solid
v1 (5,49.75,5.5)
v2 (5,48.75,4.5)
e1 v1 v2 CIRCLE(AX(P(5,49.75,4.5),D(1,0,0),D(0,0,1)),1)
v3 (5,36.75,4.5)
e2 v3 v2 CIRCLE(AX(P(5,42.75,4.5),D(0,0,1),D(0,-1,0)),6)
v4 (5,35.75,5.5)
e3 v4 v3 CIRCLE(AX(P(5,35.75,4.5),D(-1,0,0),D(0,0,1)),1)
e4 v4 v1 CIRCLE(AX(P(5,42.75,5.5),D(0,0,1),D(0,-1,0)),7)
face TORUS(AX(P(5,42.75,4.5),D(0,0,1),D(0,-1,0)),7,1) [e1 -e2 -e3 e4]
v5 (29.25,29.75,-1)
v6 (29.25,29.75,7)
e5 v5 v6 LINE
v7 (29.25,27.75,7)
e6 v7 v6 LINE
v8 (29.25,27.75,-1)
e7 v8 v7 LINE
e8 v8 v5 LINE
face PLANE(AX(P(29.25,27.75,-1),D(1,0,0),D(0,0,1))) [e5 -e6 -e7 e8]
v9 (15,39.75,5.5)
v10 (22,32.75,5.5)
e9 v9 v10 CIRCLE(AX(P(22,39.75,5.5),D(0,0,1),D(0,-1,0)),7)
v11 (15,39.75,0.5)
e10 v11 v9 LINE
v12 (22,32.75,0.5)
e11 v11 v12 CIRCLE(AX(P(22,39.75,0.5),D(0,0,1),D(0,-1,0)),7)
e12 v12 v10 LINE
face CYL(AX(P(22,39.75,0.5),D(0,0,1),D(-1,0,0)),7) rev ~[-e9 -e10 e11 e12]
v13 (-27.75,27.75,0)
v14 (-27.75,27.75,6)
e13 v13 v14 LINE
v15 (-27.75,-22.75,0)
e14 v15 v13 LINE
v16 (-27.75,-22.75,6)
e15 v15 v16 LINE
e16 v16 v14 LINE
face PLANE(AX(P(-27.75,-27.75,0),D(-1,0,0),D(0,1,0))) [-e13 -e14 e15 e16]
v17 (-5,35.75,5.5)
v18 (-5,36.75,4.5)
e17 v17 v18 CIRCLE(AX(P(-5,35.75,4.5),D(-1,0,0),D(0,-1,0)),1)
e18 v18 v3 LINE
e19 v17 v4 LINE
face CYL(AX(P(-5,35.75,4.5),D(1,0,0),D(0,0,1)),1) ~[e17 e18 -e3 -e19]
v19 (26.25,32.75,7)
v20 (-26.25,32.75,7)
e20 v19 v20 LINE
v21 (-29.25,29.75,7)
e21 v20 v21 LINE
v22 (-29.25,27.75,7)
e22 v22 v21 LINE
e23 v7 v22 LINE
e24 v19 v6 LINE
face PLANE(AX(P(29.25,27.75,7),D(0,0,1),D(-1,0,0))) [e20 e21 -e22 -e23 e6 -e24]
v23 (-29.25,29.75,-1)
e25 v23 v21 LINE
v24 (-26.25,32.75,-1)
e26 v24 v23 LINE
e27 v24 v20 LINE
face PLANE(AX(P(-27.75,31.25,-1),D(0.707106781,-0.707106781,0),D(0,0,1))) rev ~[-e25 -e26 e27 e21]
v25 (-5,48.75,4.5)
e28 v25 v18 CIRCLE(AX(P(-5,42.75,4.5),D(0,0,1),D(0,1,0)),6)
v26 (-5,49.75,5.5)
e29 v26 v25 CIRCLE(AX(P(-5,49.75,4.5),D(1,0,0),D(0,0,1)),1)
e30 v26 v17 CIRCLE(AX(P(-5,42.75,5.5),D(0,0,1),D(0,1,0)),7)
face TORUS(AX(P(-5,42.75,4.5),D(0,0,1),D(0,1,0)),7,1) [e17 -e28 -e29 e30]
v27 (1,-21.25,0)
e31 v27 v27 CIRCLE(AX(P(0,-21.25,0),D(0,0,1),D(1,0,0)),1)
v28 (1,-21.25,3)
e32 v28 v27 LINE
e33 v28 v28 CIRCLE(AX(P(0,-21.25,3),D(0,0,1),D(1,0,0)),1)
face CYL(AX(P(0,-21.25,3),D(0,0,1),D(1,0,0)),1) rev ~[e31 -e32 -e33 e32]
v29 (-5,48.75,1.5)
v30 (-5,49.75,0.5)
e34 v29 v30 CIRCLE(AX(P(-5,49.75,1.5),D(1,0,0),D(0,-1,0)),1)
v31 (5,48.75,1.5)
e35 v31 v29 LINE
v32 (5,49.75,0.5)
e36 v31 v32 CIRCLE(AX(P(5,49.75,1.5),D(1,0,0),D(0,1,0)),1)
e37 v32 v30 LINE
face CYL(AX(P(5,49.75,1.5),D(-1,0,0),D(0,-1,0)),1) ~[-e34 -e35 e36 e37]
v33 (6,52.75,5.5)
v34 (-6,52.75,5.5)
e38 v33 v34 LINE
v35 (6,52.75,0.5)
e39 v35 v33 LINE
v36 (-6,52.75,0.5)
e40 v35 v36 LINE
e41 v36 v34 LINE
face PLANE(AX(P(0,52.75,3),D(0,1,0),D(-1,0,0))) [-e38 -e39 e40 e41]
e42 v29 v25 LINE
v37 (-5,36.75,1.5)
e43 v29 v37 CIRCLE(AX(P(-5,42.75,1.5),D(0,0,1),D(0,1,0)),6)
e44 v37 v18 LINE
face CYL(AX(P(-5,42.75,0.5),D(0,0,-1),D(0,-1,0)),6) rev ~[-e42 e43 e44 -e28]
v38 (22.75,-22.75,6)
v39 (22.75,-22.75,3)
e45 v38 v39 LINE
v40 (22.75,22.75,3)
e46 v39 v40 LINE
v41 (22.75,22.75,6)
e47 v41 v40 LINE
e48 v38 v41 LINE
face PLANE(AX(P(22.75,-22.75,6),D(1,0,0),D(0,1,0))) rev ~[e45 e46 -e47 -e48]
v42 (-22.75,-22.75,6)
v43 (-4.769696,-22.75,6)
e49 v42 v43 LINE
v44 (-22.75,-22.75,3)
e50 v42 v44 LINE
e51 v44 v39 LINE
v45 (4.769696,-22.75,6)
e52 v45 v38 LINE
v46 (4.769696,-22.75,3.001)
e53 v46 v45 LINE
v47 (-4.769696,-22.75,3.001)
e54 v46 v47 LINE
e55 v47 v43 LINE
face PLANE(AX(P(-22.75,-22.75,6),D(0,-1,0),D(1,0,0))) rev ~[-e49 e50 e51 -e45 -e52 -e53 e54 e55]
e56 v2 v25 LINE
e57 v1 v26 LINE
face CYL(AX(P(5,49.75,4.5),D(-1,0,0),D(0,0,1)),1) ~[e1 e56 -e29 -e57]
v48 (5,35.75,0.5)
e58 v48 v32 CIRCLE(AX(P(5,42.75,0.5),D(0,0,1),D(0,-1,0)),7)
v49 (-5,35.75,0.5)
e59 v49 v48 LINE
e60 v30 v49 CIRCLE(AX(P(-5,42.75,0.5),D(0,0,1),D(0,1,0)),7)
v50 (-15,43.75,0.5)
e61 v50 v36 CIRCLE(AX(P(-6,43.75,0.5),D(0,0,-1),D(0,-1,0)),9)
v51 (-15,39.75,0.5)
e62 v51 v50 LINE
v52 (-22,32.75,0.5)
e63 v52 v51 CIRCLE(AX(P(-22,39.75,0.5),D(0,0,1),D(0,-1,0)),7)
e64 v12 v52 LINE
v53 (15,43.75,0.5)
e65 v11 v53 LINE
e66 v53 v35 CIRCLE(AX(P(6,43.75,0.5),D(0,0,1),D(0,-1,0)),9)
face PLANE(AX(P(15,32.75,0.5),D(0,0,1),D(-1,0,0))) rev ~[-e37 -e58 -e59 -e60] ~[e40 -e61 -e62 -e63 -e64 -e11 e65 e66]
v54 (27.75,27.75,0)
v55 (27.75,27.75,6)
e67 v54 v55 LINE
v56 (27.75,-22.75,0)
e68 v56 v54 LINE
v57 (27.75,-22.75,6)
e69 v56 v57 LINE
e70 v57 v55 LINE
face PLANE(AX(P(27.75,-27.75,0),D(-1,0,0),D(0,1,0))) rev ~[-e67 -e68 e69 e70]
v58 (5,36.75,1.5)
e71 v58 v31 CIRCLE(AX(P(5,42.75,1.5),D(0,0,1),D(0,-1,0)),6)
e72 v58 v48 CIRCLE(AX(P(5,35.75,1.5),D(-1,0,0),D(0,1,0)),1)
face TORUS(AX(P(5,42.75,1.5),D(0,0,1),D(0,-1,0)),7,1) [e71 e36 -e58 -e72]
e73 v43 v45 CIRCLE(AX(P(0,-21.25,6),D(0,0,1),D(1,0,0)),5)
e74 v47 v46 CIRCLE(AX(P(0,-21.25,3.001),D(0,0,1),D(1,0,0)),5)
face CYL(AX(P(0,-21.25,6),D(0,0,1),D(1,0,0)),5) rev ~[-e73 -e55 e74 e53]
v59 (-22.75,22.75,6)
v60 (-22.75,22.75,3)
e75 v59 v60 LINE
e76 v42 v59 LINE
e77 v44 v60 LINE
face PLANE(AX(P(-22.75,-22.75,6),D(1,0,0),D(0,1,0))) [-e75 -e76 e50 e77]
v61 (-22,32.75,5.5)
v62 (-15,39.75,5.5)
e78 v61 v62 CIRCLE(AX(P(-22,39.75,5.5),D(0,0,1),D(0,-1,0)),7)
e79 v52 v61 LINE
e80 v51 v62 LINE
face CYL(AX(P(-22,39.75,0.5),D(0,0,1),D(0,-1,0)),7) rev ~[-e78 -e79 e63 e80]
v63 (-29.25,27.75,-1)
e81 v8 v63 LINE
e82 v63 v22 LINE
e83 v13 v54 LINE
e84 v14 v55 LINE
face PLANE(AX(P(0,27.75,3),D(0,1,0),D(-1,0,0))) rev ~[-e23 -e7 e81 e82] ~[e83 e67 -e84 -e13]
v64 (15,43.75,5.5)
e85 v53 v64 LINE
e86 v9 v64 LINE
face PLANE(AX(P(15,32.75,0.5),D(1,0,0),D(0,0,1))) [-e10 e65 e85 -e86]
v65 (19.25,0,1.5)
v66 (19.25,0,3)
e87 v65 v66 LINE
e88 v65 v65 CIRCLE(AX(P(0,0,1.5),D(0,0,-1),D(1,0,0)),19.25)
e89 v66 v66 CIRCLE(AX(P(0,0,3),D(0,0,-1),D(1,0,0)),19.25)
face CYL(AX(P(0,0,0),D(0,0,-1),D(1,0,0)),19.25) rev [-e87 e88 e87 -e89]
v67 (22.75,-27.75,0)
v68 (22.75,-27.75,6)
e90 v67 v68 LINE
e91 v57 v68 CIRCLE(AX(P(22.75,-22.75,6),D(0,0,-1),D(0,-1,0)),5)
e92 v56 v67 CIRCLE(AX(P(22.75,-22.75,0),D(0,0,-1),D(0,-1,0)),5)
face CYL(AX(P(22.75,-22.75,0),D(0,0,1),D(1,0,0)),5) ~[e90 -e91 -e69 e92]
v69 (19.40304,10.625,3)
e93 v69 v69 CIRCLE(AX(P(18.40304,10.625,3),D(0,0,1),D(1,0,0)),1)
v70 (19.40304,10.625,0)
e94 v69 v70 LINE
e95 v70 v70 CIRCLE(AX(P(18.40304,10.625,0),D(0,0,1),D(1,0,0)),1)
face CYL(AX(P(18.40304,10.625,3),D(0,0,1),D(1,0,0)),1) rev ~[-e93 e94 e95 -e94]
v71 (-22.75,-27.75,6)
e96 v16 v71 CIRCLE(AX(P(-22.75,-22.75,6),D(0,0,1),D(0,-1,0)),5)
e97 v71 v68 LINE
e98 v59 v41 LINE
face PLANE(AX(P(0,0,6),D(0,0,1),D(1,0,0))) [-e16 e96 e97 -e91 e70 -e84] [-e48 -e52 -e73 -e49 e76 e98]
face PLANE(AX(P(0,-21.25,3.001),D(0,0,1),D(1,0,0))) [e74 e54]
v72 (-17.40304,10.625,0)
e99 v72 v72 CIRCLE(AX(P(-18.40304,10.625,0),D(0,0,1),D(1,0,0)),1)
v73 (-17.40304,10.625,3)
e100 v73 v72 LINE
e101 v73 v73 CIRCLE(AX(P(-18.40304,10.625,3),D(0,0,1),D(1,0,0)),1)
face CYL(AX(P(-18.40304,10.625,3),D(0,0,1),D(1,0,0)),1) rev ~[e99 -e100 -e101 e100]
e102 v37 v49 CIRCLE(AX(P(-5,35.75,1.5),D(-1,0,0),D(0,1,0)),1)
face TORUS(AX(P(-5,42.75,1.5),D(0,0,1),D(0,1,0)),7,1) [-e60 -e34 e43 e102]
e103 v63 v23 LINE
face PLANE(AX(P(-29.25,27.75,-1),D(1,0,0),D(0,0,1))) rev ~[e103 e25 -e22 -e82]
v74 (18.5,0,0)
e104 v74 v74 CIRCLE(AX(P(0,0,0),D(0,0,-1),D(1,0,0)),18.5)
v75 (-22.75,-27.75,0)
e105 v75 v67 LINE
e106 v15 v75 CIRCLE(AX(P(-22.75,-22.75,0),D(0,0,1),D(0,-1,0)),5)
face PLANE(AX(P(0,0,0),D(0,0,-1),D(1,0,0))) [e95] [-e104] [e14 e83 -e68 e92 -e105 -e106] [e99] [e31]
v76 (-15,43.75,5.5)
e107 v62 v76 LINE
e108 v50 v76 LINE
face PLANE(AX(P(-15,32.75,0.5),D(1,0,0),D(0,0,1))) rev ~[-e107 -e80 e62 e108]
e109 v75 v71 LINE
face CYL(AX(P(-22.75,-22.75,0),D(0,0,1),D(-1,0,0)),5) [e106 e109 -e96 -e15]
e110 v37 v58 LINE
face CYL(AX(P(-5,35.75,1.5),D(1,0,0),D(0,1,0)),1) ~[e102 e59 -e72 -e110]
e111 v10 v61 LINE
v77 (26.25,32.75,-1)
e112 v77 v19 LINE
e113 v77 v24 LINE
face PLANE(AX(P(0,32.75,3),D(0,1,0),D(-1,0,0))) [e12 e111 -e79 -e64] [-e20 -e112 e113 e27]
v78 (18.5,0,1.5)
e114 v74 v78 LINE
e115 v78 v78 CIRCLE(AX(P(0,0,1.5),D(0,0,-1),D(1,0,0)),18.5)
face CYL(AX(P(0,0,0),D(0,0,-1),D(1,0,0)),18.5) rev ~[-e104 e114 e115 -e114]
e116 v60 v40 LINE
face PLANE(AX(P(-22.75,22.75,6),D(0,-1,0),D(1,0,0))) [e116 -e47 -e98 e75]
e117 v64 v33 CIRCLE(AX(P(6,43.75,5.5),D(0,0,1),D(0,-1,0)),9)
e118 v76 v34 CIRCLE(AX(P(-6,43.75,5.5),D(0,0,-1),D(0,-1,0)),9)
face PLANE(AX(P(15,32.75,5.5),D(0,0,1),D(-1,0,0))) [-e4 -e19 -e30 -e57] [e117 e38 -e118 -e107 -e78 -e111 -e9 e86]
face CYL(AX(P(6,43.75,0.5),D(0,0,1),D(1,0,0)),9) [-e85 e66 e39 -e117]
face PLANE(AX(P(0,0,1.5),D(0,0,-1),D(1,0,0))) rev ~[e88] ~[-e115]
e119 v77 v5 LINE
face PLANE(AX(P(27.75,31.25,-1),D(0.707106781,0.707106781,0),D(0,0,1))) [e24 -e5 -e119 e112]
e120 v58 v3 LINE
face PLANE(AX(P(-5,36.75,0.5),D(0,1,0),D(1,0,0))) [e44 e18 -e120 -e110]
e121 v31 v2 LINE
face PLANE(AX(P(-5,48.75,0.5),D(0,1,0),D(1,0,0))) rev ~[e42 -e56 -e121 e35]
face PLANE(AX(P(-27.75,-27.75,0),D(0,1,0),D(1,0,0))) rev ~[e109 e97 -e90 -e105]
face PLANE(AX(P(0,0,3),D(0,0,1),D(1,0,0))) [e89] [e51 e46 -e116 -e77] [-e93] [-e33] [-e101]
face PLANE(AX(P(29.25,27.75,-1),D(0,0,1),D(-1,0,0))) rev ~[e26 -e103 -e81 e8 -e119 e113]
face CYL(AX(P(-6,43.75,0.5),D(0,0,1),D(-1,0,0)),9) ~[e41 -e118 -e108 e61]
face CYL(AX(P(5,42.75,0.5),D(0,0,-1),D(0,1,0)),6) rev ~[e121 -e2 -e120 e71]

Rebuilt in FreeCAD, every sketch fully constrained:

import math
import FreeCAD as App
import Part
import Sketcher
from FreeCAD import Vector
Q = App.Units.Quantity


def edges_at(feature, points):
    """Names of the edges that pass closest to the given points."""
    edges = feature.Shape.Edges
    near = lambda p: min(range(len(edges)), key=lambda i: edges[i].distToShape(Part.Vertex(*p))[0])
    return sorted({f"Edge{near(p) + 1}" for p in points})

doc = App.newDocument("Part")
body = doc.addObject("PartDesign::Body", "Body")

# Sketch on XY plane
sketch1 = body.newObject("Sketcher::SketchObject", "Sketch")
sketch1.AttachmentSupport = (doc.getObject("XY_Plane"), [""])
sketch1.MapMode = "FlatFace"
sketch1.addGeometry([
    Part.LineSegment(Vector(-28, 28, 0), Vector(-28, -28, 0)),  # 0
    Part.LineSegment(Vector(-28, -28, 0), Vector(28, -28, 0)),  # 1
    Part.LineSegment(Vector(28, -28, 0), Vector(28, 28, 0)),  # 2
    Part.LineSegment(Vector(28, 28, 0), Vector(-28, 28, 0)),  # 3
    Part.Circle(Vector(0, 0, 0), Vector(0, 0, 1), 19),  # 4
], False)
sketch1.addConstraint([
    Sketcher.Constraint("Coincident", 0, 2, 1, 1),
    Sketcher.Constraint("Coincident", 1, 2, 2, 1),
    Sketcher.Constraint("Coincident", 2, 2, 3, 1),
    Sketcher.Constraint("Coincident", 3, 2, 0, 1),
    Sketcher.Constraint("Vertical", 0),
    Sketcher.Constraint("Horizontal", 1),
    Sketcher.Constraint("Vertical", 2),
    Sketcher.Constraint("Horizontal", 3),
    Sketcher.Constraint("Coincident", 4, 3, -1, 1),
    Sketcher.Constraint("Symmetric", 0, 2, 2, 2, -1, 1),
    Sketcher.Constraint("Equal", 3, 0),
    Sketcher.Constraint("Diameter", 4, Q("38.5 mm")),
    Sketcher.Constraint("DistanceX", 1, 1, 1, 2, Q("55.5 mm")),
])
pad1 = body.newObject("PartDesign::Pad", "Pad")
pad1.Profile = sketch1
pad1.Length = 6

# Sketch on XZ plane
sketch2 = body.newObject("Sketcher::SketchObject", "Sketch001")
sketch2.AttachmentSupport = (doc.getObject("XZ_Plane"), [""])
sketch2.MapMode = "FlatFace"
sketch2.AttachmentOffset = App.Placement(Vector(0, 0, -27.75), App.Rotation())
sketch2.addGeometry([
    Part.LineSegment(Vector(29, 7, 0), Vector(29, -1, 0)),
    Part.LineSegment(Vector(29, -1, 0), Vector(-29, -1, 0)),
    Part.LineSegment(Vector(-29, -1, 0), Vector(-29, 7, 0)),
    Part.LineSegment(Vector(-29, 7, 0), Vector(29, 7, 0)),
], False)
sketch2.addConstraint([
    Sketcher.Constraint("Coincident", 0, 2, 1, 1),
    Sketcher.Constraint("Coincident", 1, 2, 2, 1),
    Sketcher.Constraint("Coincident", 2, 2, 3, 1),
    Sketcher.Constraint("Coincident", 3, 2, 0, 1),
    Sketcher.Constraint("Vertical", 0),
    Sketcher.Constraint("Horizontal", 1),
    Sketcher.Constraint("Vertical", 2),
    Sketcher.Constraint("Horizontal", 3),
    Sketcher.Constraint("DistanceY", 0, 2, 0, 1, Q("8 mm")),
    Sketcher.Constraint("DistanceX", 1, 2, 1, 1, Q("58.5 mm")),
    Sketcher.Constraint("DistanceY", 0, 2, -1, 1, Q("1 mm")),
    Sketcher.Constraint("DistanceX", -1, 1, 0, 2, Q("29.25 mm")),
])
pad2 = body.newObject("PartDesign::Pad", "Pad001")
pad2.Profile = sketch2
pad2.Length = 5
pad2.Reversed = True

# Sketch on XZ plane
sketch3 = body.newObject("Sketcher::SketchObject", "Sketch002")
sketch3.AttachmentSupport = (doc.getObject("XZ_Plane"), [""])
sketch3.MapMode = "FlatFace"
sketch3.AttachmentOffset = App.Placement(Vector(0, 0, -32.75), App.Rotation())
sketch3.addGeometry([
    Part.LineSegment(Vector(15, 6, 0), Vector(15, 0, 0)),
    Part.LineSegment(Vector(15, 0, 0), Vector(-15, 0, 0)),
    Part.LineSegment(Vector(-15, 0, 0), Vector(-15, 6, 0)),
    Part.LineSegment(Vector(-15, 6, 0), Vector(15, 6, 0)),
], False)
sketch3.addConstraint([
    Sketcher.Constraint("Coincident", 0, 2, 1, 1),
    Sketcher.Constraint("Coincident", 1, 2, 2, 1),
    Sketcher.Constraint("Coincident", 2, 2, 3, 1),
    Sketcher.Constraint("Coincident", 3, 2, 0, 1),
    Sketcher.Constraint("Vertical", 0),
    Sketcher.Constraint("Horizontal", 1),
    Sketcher.Constraint("Vertical", 2),
    Sketcher.Constraint("Horizontal", 3),
    Sketcher.Constraint("DistanceX", 1, 2, 1, 1, Q("30 mm")),
    Sketcher.Constraint("DistanceY", 0, 2, 0, 1, Q("5 mm")),
    Sketcher.Constraint("DistanceX", -1, 1, 0, 2, Q("15 mm")),
    Sketcher.Constraint("DistanceY", -1, 1, 0, 2, Q("0.5 mm")),
])
pad3 = body.newObject("PartDesign::Pad", "Pad002")
pad3.Profile = sketch3
pad3.Length = 20
pad3.Reversed = True
doc.recompute()

fillet = body.newObject("PartDesign::Fillet", "Fillet")
fillet.Base = (pad3, edges_at(pad3, [(-27.75, -27.75, 3), (27.75, -27.75, 3)]))
fillet.Radius = 5

# Sketch on XY plane
sketch4 = body.newObject("Sketcher::SketchObject", "Sketch003")
sketch4.AttachmentSupport = (doc.getObject("XY_Plane"), [""])
sketch4.MapMode = "FlatFace"
sketch4.AttachmentOffset = App.Placement(Vector(0, 0, 0.5), App.Rotation())
sketch4.addGeometry([
    Part.ArcOfCircle(Part.Circle(Vector(-5, 43, 0), Vector(0, 0, 1), 6), math.radians(90), math.radians(270)),
    Part.LineSegment(Vector(-5, 49, 0), Vector(5, 49, 0)),
    Part.ArcOfCircle(Part.Circle(Vector(5, 43, 0), Vector(0, 0, 1), 6), math.radians(-90), math.radians(90)),
    Part.LineSegment(Vector(5, 37, 0), Vector(-5, 37, 0)),
], False)
sketch4.addConstraint([
    Sketcher.Constraint("Tangent", 0, 1, 1, 1),
    Sketcher.Constraint("Tangent", 1, 2, 2, 2),
    Sketcher.Constraint("Tangent", 2, 1, 3, 1),
    Sketcher.Constraint("Tangent", 3, 2, 0, 2),
    Sketcher.Constraint("Horizontal", 1),
    Sketcher.Constraint("Horizontal", 3),
    Sketcher.Constraint("Radius", 0, Q("6 mm")),
    Sketcher.Constraint("DistanceX", 1, 1, 1, 2, Q("10 mm")),
    Sketcher.Constraint("DistanceX", 0, 3, -1, 1, Q("5 mm")),
    Sketcher.Constraint("DistanceY", -1, 1, 0, 3, Q("42.75 mm")),
])
pocket1 = body.newObject("PartDesign::Pocket", "Pocket")
pocket1.Profile = sketch4
pocket1.Length = 6
pocket1.Reversed = True
doc.recompute()

fillet2 = body.newObject("PartDesign::Fillet", "Fillet001")
fillet2.Base = (pocket1, edges_at(pocket1, [(15, 52.75, 3), (-15, 52.75, 3)]))
fillet2.Radius = 9
doc.recompute()

fillet3 = body.newObject("PartDesign::Fillet", "Fillet002")
fillet3.Base = (fillet2, edges_at(fillet2, [(15, 32.75, 3), (-15, 32.75, 3)]))
fillet3.Radius = 7
doc.recompute()

chamfer = body.newObject("PartDesign::Chamfer", "Chamfer")
chamfer.Base = (fillet3, edges_at(fillet3, [(-29.25, 32.75, 3), (29.25, 32.75, 3)]))
chamfer.Size = 3

# Sketch on XY plane
sketch5 = body.newObject("Sketcher::SketchObject", "Sketch004")
sketch5.AttachmentSupport = (doc.getObject("XY_Plane"), [""])
sketch5.MapMode = "FlatFace"
sketch5.addGeometry([
    Part.Circle(Vector(0, 0, 0), Vector(0, 0, 1), 19),
    Part.Circle(Vector(0, 0, 0), Vector(0, 0, 1), 18),
], False)
sketch5.addConstraint([
    Sketcher.Constraint("Coincident", 0, 3, -1, 1),
    Sketcher.Constraint("Coincident", 1, 3, -1, 1),
    Sketcher.Constraint("Diameter", 1, Q("37 mm")),
    Sketcher.Constraint("Diameter", 0, Q("38.5 mm")),
])
pad4 = body.newObject("PartDesign::Pad", "Pad003")
pad4.Profile = sketch5
pad4.Length = 1.5

# Sketch on XY plane
sketch6 = body.newObject("Sketcher::SketchObject", "Sketch005")
sketch6.AttachmentSupport = (doc.getObject("XY_Plane"), [""])
sketch6.MapMode = "FlatFace"
sketch6.AttachmentOffset = App.Placement(Vector(0, 0, 6), App.Rotation())
sketch6.addGeometry([
    Part.LineSegment(Vector(-23, 23, 0), Vector(-23, -23, 0)),
    Part.LineSegment(Vector(-23, -23, 0), Vector(23, -23, 0)),
    Part.LineSegment(Vector(23, -23, 0), Vector(23, 23, 0)),
    Part.LineSegment(Vector(23, 23, 0), Vector(-23, 23, 0)),
], False)
sketch6.addConstraint([
    Sketcher.Constraint("Coincident", 0, 2, 1, 1),
    Sketcher.Constraint("Coincident", 1, 2, 2, 1),
    Sketcher.Constraint("Coincident", 2, 2, 3, 1),
    Sketcher.Constraint("Coincident", 3, 2, 0, 1),
    Sketcher.Constraint("Vertical", 0),
    Sketcher.Constraint("Horizontal", 1),
    Sketcher.Constraint("Vertical", 2),
    Sketcher.Constraint("Horizontal", 3),
    Sketcher.Constraint("Symmetric", 0, 2, 2, 2, -1, 1),
    Sketcher.Constraint("Equal", 3, 0),
    Sketcher.Constraint("DistanceX", 1, 1, 1, 2, Q("45.5 mm")),
])
pocket2 = body.newObject("PartDesign::Pocket", "Pocket001")
pocket2.Profile = sketch6
pocket2.Length = 3

# Sketch on XY plane
sketch7 = body.newObject("Sketcher::SketchObject", "Sketch006")
sketch7.AttachmentSupport = (doc.getObject("XY_Plane"), [""])
sketch7.MapMode = "FlatFace"
sketch7.AttachmentOffset = App.Placement(Vector(0, 0, 3), App.Rotation())
sketch7.addGeometry([
    Part.Circle(Vector(-18.4, 10.6, 0), Vector(0, 0, 1), 1),
    Part.Circle(Vector(18.4, 10.6, 0), Vector(0, 0, 1), 1),
    Part.Circle(Vector(0, -21.2, 0), Vector(0, 0, 1), 1),
], False)
sketch7.addConstraint([
    Sketcher.Constraint("Equal", 0, 1),
    Sketcher.Constraint("Equal", 1, 2),
    Sketcher.Constraint("Symmetric", 0, 3, 1, 3, -2),
    Sketcher.Constraint("PointOnObject", 2, 3, -2),
    Sketcher.Constraint("Diameter", 0, Q("2 mm")),
    Sketcher.Constraint("DistanceY", 2, 3, -1, 1, Q("21.25 mm")),
    Sketcher.Constraint("DistanceY", -1, 1, 0, 3, Q("10.625 mm")),
    Sketcher.Constraint("DistanceX", 0, 3, -1, 1, Q("18.40304 mm")),
])
pocket3 = body.newObject("PartDesign::Pocket", "Pocket002")
pocket3.Profile = sketch7
pocket3.Length = 6
doc.recompute()

fillet4 = body.newObject("PartDesign::Fillet", "Fillet003")
fillet4.Base = (pocket3, edges_at(pocket3, [(0, 48.75, 5.5)]))
fillet4.Radius = 1
doc.recompute()

fillet5 = body.newObject("PartDesign::Fillet", "Fillet004")
fillet5.Base = (fillet4, edges_at(fillet4, [(0, 36.75, 0.5)]))
fillet5.Radius = 1

# Sketch on XY plane
sketch8 = body.newObject("Sketcher::SketchObject", "Sketch007")
sketch8.AttachmentSupport = (doc.getObject("XY_Plane"), [""])
sketch8.MapMode = "FlatFace"
sketch8.AttachmentOffset = App.Placement(Vector(0, 0, 6), App.Rotation())
sketch8.addGeometry(Part.Circle(Vector(0, -21, 0), Vector(0, 0, 1), 5), False)
sketch8.addConstraint([
    Sketcher.Constraint("PointOnObject", 0, 3, -2),
    Sketcher.Constraint("Diameter", 0, Q("10 mm")),
    Sketcher.Constraint("DistanceY", 0, 3, -1, 1, Q("21.25 mm")),
])
pocket4 = body.newObject("PartDesign::Pocket", "Pocket003")
pocket4.Profile = sketch8
pocket4.Length = 2.999

doc.recompute()
